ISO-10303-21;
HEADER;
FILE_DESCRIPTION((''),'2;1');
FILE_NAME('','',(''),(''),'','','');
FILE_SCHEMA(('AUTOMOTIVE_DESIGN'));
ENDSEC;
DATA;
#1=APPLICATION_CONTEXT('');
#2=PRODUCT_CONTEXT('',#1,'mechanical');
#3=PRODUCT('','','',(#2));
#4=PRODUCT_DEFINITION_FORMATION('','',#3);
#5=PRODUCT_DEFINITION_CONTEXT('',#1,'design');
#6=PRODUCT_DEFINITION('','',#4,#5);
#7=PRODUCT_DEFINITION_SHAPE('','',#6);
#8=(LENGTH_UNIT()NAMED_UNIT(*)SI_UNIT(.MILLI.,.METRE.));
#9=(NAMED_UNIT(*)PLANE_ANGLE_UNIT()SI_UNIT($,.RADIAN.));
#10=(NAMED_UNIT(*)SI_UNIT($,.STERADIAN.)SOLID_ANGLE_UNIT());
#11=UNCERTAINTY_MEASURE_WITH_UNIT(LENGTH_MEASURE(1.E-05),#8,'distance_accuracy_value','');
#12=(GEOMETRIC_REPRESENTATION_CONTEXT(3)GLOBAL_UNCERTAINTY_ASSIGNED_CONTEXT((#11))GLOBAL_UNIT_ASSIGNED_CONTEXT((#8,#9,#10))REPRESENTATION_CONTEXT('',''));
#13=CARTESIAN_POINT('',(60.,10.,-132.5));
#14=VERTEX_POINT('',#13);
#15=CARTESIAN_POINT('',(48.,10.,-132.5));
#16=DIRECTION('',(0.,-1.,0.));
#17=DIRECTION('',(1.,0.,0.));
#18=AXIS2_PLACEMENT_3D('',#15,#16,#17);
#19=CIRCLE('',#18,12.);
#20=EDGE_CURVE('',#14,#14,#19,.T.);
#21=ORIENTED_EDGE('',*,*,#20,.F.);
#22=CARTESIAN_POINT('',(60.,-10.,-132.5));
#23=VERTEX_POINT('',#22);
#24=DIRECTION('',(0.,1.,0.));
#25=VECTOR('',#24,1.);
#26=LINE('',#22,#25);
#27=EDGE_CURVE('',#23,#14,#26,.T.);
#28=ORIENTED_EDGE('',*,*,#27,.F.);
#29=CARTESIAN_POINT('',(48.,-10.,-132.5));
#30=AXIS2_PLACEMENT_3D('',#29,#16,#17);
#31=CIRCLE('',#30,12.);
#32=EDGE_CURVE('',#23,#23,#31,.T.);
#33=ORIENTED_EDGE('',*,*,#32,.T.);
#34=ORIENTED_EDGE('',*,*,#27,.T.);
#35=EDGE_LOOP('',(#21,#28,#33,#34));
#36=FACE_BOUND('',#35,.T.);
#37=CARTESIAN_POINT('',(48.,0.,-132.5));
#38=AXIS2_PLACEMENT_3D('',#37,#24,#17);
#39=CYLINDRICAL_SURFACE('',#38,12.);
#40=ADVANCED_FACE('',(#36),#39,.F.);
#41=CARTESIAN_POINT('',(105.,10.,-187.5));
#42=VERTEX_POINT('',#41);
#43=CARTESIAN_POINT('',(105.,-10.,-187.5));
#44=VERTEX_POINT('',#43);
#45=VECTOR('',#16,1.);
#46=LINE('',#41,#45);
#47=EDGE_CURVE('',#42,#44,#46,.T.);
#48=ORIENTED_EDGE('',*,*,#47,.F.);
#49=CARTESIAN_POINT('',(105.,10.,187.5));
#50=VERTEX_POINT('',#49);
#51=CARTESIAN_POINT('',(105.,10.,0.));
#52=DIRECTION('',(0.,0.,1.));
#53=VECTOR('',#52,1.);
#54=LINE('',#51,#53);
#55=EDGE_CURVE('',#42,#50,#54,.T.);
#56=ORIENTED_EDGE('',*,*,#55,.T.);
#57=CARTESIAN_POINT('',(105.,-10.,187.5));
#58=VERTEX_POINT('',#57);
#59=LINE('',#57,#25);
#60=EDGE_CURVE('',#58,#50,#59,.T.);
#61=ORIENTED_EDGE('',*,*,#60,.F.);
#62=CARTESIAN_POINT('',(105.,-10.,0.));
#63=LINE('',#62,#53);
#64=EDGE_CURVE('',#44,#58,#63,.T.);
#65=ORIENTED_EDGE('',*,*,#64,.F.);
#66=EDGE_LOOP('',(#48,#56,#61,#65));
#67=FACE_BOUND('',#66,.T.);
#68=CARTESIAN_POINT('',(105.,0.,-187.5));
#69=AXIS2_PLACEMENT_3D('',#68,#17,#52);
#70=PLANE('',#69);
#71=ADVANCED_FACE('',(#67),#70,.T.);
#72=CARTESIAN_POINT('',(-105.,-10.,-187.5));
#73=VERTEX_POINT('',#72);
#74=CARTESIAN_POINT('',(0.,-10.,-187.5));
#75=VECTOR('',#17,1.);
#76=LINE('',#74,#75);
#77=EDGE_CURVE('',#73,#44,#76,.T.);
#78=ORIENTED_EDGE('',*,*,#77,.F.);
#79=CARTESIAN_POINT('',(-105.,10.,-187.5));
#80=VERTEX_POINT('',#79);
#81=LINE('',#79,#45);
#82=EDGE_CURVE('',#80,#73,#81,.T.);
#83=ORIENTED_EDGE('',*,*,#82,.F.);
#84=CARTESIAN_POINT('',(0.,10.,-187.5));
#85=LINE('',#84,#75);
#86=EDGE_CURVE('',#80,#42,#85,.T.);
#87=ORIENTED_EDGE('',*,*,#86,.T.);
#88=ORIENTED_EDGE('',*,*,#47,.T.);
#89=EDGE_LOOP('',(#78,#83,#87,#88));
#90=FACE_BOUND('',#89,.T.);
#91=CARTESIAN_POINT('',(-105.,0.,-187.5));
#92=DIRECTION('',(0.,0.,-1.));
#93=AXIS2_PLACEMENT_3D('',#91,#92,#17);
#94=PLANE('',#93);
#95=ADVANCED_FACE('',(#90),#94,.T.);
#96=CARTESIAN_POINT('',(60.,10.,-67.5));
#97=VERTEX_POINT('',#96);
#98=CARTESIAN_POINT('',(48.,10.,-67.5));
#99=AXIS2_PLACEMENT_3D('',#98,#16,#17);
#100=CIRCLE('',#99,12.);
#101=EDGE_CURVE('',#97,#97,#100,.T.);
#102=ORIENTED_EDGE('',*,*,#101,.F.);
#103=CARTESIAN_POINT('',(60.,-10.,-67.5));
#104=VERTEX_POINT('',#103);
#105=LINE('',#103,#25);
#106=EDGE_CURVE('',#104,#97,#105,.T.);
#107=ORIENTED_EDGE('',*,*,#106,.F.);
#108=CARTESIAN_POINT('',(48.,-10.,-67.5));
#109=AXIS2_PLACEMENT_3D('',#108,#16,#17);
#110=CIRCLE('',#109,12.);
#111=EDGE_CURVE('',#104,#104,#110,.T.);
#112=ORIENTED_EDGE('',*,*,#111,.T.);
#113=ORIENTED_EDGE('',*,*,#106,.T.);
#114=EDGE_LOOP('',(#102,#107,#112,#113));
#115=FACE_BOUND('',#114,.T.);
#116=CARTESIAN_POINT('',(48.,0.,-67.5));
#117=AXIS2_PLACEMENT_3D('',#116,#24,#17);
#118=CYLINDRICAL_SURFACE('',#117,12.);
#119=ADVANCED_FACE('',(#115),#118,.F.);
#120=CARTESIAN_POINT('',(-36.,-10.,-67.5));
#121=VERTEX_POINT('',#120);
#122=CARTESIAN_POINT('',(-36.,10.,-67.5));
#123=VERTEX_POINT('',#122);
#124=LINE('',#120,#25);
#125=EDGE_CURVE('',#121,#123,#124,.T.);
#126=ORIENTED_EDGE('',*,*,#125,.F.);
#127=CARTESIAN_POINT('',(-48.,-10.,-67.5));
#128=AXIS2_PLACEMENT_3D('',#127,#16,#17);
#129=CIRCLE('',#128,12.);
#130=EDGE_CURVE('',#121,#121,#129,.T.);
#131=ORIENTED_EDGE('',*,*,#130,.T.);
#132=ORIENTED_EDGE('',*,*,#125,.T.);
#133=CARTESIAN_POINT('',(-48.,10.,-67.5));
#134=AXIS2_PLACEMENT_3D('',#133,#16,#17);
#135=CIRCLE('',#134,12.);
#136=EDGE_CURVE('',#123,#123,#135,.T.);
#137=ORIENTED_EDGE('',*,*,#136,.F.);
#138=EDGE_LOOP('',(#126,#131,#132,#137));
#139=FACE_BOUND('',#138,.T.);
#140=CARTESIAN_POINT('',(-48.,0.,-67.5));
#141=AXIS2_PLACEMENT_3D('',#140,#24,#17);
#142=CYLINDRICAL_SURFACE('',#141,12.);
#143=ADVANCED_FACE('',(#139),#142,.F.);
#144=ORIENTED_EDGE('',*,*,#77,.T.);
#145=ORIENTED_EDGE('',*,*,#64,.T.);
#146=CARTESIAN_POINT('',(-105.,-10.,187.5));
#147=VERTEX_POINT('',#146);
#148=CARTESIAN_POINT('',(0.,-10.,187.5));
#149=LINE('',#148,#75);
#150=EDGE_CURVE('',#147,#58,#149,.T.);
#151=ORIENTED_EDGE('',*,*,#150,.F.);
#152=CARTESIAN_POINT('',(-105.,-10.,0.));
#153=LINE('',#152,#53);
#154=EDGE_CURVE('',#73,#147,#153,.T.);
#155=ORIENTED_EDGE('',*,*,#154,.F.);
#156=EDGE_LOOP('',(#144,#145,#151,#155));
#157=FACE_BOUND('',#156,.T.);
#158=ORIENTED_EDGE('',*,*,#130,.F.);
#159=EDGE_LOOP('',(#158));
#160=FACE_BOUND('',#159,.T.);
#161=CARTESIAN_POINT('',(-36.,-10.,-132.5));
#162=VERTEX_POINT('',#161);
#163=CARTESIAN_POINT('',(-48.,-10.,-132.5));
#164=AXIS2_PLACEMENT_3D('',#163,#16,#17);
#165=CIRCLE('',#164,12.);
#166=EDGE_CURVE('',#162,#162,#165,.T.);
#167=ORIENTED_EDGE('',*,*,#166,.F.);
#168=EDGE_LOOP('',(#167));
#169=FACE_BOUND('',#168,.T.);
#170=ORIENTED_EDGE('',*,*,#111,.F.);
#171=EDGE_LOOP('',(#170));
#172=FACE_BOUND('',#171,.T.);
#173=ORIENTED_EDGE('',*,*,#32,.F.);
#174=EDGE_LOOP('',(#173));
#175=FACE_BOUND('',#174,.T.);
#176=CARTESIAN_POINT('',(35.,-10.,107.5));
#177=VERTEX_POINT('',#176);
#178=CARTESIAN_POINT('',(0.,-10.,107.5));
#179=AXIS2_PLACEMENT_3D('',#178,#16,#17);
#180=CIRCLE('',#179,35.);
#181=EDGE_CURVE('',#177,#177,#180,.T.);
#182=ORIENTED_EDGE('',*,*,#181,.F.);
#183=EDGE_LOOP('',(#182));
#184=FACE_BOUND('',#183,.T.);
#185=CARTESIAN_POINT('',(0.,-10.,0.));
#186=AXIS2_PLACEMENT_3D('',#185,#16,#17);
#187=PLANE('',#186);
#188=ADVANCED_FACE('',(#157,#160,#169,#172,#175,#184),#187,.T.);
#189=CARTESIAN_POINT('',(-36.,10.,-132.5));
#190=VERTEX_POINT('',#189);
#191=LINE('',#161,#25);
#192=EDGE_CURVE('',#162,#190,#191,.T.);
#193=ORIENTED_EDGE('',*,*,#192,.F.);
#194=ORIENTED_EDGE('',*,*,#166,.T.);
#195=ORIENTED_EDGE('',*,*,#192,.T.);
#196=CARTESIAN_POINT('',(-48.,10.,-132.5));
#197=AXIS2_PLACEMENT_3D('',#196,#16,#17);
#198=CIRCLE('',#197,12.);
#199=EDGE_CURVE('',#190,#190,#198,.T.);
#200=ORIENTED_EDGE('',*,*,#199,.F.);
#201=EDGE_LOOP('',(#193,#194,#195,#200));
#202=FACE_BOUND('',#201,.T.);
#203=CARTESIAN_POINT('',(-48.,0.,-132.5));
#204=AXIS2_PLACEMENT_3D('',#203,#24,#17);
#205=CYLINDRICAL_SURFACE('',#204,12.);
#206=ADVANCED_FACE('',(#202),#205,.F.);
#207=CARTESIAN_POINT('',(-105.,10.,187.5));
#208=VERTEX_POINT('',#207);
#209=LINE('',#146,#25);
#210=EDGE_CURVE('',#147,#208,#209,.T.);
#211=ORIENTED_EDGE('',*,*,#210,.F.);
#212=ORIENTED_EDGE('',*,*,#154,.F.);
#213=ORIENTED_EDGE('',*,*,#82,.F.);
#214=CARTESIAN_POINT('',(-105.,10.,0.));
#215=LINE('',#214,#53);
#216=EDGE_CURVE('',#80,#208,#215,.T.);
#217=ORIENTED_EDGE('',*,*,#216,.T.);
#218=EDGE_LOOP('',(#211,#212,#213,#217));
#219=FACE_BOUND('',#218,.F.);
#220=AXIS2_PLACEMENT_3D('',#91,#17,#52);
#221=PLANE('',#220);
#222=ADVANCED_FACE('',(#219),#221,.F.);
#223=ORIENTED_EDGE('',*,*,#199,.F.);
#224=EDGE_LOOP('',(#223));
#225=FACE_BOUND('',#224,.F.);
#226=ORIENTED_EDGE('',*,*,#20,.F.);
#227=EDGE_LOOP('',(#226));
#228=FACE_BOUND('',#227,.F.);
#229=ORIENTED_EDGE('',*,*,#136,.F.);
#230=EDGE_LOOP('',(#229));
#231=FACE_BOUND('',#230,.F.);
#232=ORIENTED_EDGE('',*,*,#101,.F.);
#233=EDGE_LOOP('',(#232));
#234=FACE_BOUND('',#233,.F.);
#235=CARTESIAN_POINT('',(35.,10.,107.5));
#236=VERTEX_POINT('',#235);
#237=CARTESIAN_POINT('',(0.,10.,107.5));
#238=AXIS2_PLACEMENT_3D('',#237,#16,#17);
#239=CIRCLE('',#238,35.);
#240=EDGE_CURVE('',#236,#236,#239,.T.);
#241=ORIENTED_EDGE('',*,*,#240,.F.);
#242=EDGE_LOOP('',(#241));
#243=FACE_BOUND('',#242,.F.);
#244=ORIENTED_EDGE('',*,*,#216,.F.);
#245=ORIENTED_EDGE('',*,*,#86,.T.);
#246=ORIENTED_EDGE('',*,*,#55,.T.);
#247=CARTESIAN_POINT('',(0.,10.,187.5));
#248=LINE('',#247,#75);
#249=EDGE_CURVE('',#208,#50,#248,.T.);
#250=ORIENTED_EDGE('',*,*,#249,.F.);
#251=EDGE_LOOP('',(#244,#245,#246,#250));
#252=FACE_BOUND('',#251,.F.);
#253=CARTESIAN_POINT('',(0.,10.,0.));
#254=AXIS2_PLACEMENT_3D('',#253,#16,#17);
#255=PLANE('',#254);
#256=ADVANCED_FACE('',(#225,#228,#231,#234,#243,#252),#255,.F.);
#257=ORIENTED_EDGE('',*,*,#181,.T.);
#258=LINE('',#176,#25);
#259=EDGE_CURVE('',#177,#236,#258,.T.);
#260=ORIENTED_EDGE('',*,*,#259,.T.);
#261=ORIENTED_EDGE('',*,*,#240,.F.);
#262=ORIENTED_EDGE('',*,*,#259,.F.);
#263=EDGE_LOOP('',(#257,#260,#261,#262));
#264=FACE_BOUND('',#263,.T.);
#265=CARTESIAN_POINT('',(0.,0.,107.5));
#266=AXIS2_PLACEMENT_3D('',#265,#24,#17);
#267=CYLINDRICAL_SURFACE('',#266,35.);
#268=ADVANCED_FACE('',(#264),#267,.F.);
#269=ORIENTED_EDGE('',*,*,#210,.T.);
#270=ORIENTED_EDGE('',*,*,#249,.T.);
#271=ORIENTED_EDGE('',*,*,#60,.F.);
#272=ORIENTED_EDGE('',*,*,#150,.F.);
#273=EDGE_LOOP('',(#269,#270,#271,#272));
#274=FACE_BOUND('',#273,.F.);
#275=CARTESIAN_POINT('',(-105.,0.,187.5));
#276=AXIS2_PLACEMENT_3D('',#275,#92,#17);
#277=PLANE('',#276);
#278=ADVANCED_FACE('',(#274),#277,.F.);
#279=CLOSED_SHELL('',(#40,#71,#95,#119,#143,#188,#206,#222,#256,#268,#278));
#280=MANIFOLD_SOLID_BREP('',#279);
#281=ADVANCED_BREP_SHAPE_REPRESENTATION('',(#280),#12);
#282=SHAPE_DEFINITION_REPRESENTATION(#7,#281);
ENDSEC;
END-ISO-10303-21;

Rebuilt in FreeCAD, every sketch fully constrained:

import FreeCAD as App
import Part
import Sketcher

V = App.Vector


def add_polygon(sketch, points):
    """Adds a closed chain of lines whose ends are joined by coincident constraints."""
    first, n = sketch.GeometryCount, len(points)
    for a, b in zip(points, points[1:] + points[:1]):
        sketch.addGeometry(Part.LineSegment(App.Vector(*a, 0), App.Vector(*b, 0)), False)
    for i in range(n):
        sketch.addConstraint(Sketcher.Constraint("Coincident", first + i, 2, first + (i + 1) % n, 1))

doc = App.newDocument("Part")
body = doc.addObject("PartDesign::Body", "Body")

# Sketch on XZ plane
sketch1 = body.newObject("Sketcher::SketchObject", "Sketch")
sketch1.AttachmentSupport = (doc.getObject("XZ_Plane"), [""])
sketch1.MapMode = "FlatFace"
add_polygon(sketch1, [(-105, 187.5), (-105, -187.5), (105, -187.5), (105, 187.5)])  # lines 0-3
sketch1.addGeometry(Part.Circle(V(-48, -132.5, 0), V(0, 0, 1), 12), False)  # 4
sketch1.addGeometry(Part.Circle(V(-48, -67.5, 0), V(0, 0, 1), 12), False)  # 5
sketch1.addGeometry(Part.Circle(V(48, -132.5, 0), V(0, 0, 1), 12), False)  # 6
sketch1.addGeometry(Part.Circle(V(48, -67.5, 0), V(0, 0, 1), 12), False)  # 7
sketch1.addGeometry(Part.Circle(V(0, 107.5, 0), V(0, 0, 1), 35), False)  # 8
sketch1.addConstraint(Sketcher.Constraint("Vertical", 0))
sketch1.addConstraint(Sketcher.Constraint("Horizontal", 1))
sketch1.addConstraint(Sketcher.Constraint("Vertical", 2))
sketch1.addConstraint(Sketcher.Constraint("Horizontal", 3))
sketch1.addConstraint(Sketcher.Constraint("Equal", 4, 5))
sketch1.addConstraint(Sketcher.Constraint("Equal", 5, 6))
sketch1.addConstraint(Sketcher.Constraint("Equal", 6, 7))
sketch1.addConstraint(Sketcher.Constraint("Symmetric", 0, 2, 2, 2, -1, 1))
sketch1.addConstraint(Sketcher.Constraint("Symmetric", 4, 3, 6, 3, -2))
sketch1.addConstraint(Sketcher.Constraint("Symmetric", 5, 3, 7, 3, -2))
sketch1.addConstraint(Sketcher.Constraint("PointOnObject", 8, 3, -2))
sketch1.addConstraint(Sketcher.Constraint("Vertical", 4, 3, 5, 3))
sketch1.addConstraint(Sketcher.Constraint("Diameter", 4, 24.0))
sketch1.addConstraint(Sketcher.Constraint("Diameter", 8, 70.0))
sketch1.addConstraint(Sketcher.Constraint("DistanceX", 1, 1, 1, 2, 210.0))
sketch1.addConstraint(Sketcher.Constraint("DistanceY", 0, 2, 0, 1, 375.0))
sketch1.addConstraint(Sketcher.Constraint("DistanceX", 4, 3, -1, 1, 48.0))
sketch1.addConstraint(Sketcher.Constraint("DistanceY", 4, 3, 5, 3, 65.0))
sketch1.addConstraint(Sketcher.Constraint("DistanceY", 5, 3, 8, 3, 175.0))
sketch1.addConstraint(Sketcher.Constraint("DistanceY", 0, 2, 4, 3, 55.0))
pad1 = body.newObject("PartDesign::Pad", "Pad")
pad1.Profile = sketch1
pad1.Length = 20
pad1.Midplane = True

doc.recompute()
